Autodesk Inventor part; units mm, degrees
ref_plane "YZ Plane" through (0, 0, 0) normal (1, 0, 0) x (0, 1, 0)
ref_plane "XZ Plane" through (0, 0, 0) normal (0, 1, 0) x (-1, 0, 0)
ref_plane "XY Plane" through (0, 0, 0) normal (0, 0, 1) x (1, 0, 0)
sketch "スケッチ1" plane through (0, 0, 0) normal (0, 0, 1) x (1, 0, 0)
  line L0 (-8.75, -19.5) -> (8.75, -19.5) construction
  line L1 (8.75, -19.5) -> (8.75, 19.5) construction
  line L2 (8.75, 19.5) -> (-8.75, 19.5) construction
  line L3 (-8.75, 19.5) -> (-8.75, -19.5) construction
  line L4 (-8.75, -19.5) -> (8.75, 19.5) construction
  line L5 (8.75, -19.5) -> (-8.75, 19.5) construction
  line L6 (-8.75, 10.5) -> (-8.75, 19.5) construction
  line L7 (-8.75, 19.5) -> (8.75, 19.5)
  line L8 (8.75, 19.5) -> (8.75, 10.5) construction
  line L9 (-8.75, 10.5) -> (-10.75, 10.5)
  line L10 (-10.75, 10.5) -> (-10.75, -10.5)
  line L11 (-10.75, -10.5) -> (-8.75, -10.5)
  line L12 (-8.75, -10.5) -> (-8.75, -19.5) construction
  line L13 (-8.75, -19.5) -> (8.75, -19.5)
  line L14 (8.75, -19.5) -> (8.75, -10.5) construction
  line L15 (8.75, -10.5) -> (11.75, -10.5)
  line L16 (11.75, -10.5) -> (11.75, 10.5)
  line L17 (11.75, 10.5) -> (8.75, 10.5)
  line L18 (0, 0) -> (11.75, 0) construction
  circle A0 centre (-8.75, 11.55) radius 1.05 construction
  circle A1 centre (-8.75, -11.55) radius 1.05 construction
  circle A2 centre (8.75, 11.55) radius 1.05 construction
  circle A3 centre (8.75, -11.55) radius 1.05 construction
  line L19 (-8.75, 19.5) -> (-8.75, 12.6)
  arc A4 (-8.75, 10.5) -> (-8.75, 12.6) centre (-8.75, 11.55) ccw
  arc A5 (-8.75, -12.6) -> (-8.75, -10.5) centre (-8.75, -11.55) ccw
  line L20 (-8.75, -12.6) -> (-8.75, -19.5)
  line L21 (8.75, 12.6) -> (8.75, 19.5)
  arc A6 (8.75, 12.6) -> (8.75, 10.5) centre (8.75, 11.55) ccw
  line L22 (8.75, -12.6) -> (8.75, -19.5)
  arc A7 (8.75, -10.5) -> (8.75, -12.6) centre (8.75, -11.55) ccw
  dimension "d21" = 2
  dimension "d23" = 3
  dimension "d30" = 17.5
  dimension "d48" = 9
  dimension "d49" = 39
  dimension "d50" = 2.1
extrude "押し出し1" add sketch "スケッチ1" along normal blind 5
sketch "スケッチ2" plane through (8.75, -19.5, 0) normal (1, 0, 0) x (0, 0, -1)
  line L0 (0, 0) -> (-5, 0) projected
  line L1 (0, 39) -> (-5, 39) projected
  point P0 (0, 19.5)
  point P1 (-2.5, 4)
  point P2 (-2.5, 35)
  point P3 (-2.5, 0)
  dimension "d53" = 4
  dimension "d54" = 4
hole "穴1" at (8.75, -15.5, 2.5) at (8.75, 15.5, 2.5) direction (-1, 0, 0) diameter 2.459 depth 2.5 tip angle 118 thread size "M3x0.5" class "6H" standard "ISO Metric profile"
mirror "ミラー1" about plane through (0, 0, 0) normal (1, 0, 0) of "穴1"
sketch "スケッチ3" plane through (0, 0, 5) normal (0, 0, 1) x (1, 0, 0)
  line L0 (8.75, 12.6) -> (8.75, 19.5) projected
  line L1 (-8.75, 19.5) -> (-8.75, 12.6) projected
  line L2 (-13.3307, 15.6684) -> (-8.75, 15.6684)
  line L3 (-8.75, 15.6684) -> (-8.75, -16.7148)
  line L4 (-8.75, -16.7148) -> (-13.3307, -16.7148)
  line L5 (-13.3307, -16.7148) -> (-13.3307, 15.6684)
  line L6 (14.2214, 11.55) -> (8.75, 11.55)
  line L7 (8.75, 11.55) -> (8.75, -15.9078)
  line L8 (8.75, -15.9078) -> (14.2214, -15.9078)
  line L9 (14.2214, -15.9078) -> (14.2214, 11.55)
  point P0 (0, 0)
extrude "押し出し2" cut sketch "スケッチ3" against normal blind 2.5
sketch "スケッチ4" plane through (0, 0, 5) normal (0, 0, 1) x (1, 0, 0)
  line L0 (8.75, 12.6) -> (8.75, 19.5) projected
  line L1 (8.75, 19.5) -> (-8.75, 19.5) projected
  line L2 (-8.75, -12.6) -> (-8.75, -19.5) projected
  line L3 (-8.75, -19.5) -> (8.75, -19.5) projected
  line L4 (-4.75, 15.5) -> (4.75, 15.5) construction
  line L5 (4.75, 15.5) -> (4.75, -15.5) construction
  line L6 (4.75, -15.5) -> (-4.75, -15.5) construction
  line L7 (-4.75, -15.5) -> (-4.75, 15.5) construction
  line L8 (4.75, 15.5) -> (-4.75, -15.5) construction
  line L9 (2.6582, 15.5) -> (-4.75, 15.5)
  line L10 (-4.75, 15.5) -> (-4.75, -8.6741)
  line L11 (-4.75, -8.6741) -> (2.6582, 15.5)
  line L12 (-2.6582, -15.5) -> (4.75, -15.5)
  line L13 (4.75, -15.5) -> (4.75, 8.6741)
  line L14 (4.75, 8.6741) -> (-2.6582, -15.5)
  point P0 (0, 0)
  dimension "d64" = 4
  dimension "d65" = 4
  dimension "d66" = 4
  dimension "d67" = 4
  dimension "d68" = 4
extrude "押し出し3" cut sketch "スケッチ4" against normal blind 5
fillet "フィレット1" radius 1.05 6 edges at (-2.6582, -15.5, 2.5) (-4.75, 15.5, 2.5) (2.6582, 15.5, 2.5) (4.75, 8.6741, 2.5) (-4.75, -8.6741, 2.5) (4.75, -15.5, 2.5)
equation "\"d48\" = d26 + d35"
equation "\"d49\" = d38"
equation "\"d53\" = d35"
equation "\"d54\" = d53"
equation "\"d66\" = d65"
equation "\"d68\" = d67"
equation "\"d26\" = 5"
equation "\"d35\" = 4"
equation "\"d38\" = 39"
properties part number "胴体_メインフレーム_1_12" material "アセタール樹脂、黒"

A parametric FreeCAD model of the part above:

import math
import FreeCAD as App
import Part
import Sketcher
Q = App.Units.Quantity


def edges_at(feature, points):
    """Names of the edges that pass closest to the given points."""
    edges = feature.Shape.Edges
    near = lambda p: min(range(len(edges)), key=lambda i: edges[i].distToShape(Part.Vertex(*p))[0])
    return sorted({f"Edge{near(p) + 1}" for p in points})

doc = App.newDocument("Part")
body = doc.addObject("PartDesign::Body", "Body")

# Sketch on XY plane
sketch1 = body.newObject("Sketcher::SketchObject", "Sketch")
sketch1.AttachmentSupport = (doc.getObject("XY_Plane"), [""])
sketch1.MapMode = "FlatFace"
sketch1.addGeometry(Part.LineSegment(App.Vector(8.8, 19.5, 0), App.Vector(-8.8, 19.5, 0)), False)
sketch1.addGeometry(Part.LineSegment(App.Vector(-8.8, 19.5, 0), App.Vector(-8.8, 12.6, 0)), False)
sketch1.addGeometry(Part.ArcOfCircle(Part.Circle(App.Vector(-8.8, 11.6, 0), App.Vector(0, 0, 1), 1.1), math.radians(-90), math.radians(90)), False)
sketch1.addGeometry(Part.LineSegment(App.Vector(-8.8, 10.5, 0), App.Vector(-10.8, 10.5, 0)), False)
sketch1.addGeometry(Part.LineSegment(App.Vector(-10.8, 10.5, 0), App.Vector(-10.8, -10.5, 0)), False)
sketch1.addGeometry(Part.LineSegment(App.Vector(-10.8, -10.5, 0), App.Vector(-8.8, -10.5, 0)), False)
sketch1.addGeometry(Part.ArcOfCircle(Part.Circle(App.Vector(-8.8, -11.6, 0), App.Vector(0, 0, 1), 1.1), math.radians(-90), math.radians(90)), False)
sketch1.addGeometry(Part.LineSegment(App.Vector(-8.8, -12.6, 0), App.Vector(-8.8, -19.5, 0)), False)
sketch1.addGeometry(Part.LineSegment(App.Vector(-8.8, -19.5, 0), App.Vector(8.8, -19.5, 0)), False)
sketch1.addGeometry(Part.LineSegment(App.Vector(8.8, -19.5, 0), App.Vector(8.8, -12.6, 0)), False)
sketch1.addGeometry(Part.ArcOfCircle(Part.Circle(App.Vector(8.8, -11.6, 0), App.Vector(0, 0, 1), 1.1), math.radians(90), math.radians(270)), False)
sketch1.addGeometry(Part.LineSegment(App.Vector(8.8, -10.5, 0), App.Vector(11.8, -10.5, 0)), False)
sketch1.addGeometry(Part.LineSegment(App.Vector(11.8, -10.5, 0), App.Vector(11.8, 10.5, 0)), False)
sketch1.addGeometry(Part.LineSegment(App.Vector(11.8, 10.5, 0), App.Vector(8.8, 10.5, 0)), False)
sketch1.addGeometry(Part.ArcOfCircle(Part.Circle(App.Vector(8.8, 11.6, 0), App.Vector(0, 0, 1), 1.1), math.radians(90), math.radians(270)), False)
sketch1.addGeometry(Part.LineSegment(App.Vector(8.8, 12.6, 0), App.Vector(8.8, 19.5, 0)), False)
sketch1.addConstraint(Sketcher.Constraint("Coincident", 0, 2, 1, 1))
sketch1.addConstraint(Sketcher.Constraint("Coincident", 1, 2, 2, 2))
sketch1.addConstraint(Sketcher.Constraint("Tangent", 2, 1, 3, 1))
sketch1.addConstraint(Sketcher.Constraint("Coincident", 3, 2, 4, 1))
sketch1.addConstraint(Sketcher.Constraint("Coincident", 4, 2, 5, 1))
sketch1.addConstraint(Sketcher.Constraint("Tangent", 5, 2, 6, 2))
sketch1.addConstraint(Sketcher.Constraint("Coincident", 6, 1, 7, 1))
sketch1.addConstraint(Sketcher.Constraint("Coincident", 7, 2, 8, 1))
sketch1.addConstraint(Sketcher.Constraint("Coincident", 8, 2, 9, 1))
sketch1.addConstraint(Sketcher.Constraint("Coincident", 9, 2, 10, 2))
sketch1.addConstraint(Sketcher.Constraint("Tangent", 10, 1, 11, 1))
sketch1.addConstraint(Sketcher.Constraint("Coincident", 11, 2, 12, 1))
sketch1.addConstraint(Sketcher.Constraint("Coincident", 12, 2, 13, 1))
sketch1.addConstraint(Sketcher.Constraint("Tangent", 13, 2, 14, 2))
sketch1.addConstraint(Sketcher.Constraint("Coincident", 14, 1, 15, 1))
sketch1.addConstraint(Sketcher.Constraint("Coincident", 15, 2, 0, 1))
sketch1.addConstraint(Sketcher.Constraint("Horizontal", 0))
sketch1.addConstraint(Sketcher.Constraint("Vertical", 1))
sketch1.addConstraint(Sketcher.Constraint("Horizontal", 3))
sketch1.addConstraint(Sketcher.Constraint("Vertical", 4))
sketch1.addConstraint(Sketcher.Constraint("Horizontal", 5))
sketch1.addConstraint(Sketcher.Constraint("Vertical", 7))
sketch1.addConstraint(Sketcher.Constraint("Horizontal", 8))
sketch1.addConstraint(Sketcher.Constraint("Vertical", 9))
sketch1.addConstraint(Sketcher.Constraint("Horizontal", 11))
sketch1.addConstraint(Sketcher.Constraint("Vertical", 12))
sketch1.addConstraint(Sketcher.Constraint("Horizontal", 13))
sketch1.addConstraint(Sketcher.Constraint("Vertical", 15))
sketch1.addConstraint(Sketcher.Constraint("Equal", 2, 6))
sketch1.addConstraint(Sketcher.Constraint("Equal", 6, 10))
sketch1.addConstraint(Sketcher.Constraint("Equal", 10, 14))
sketch1.addConstraint(Sketcher.Constraint("Symmetric", 2, 3, 10, 3, -1, 1))
sketch1.addConstraint(Sketcher.Constraint("Symmetric", 6, 3, 14, 3, -1, 1))
sketch1.addConstraint(Sketcher.Constraint("Symmetric", 0, 2, 8, 2, -1, 1))
sketch1.addConstraint(Sketcher.Constraint("Symmetric", 6, 3, 10, 3, -2))
sketch1.addConstraint(Sketcher.Constraint("Vertical", 6, 3, 0, 2))
sketch1.addConstraint(Sketcher.Constraint("Vertical", 5, 2, 6, 1))
sketch1.addConstraint(Sketcher.Constraint("Vertical", 13, 2, 14, 1))
sketch1.addConstraint(Sketcher.Constraint("DistanceX", 3, 2, 3, 1, Q("2 mm")))
sketch1.addConstraint(Sketcher.Constraint("DistanceX", 11, 1, 11, 2, Q("3 mm")))
sketch1.addConstraint(Sketcher.Constraint("Radius", 2, Q("1.05 mm")))
sketch1.addConstraint(Sketcher.Constraint("DistanceX", 0, 2, 0, 1, Q("17.5 mm")))
sketch1.addConstraint(Sketcher.Constraint("DistanceY", 2, 1, 0, 2, Q("9 mm")))
sketch1.addConstraint(Sketcher.Constraint("DistanceY", 4, 2, 4, 1, Q("21 mm")))
pad1 = body.newObject("PartDesign::Pad", "Pad")
pad1.Profile = sketch1
pad1.Length = 5

# Sketch on YZ plane
sketch2 = body.newObject("Sketcher::SketchObject", "Sketch001")
sketch2.AttachmentSupport = (doc.getObject("YZ_Plane"), [""])
sketch2.MapMode = "FlatFace"
sketch2.AttachmentOffset = App.Placement(App.Vector(0, 0, 8.75), App.Rotation())
sketch2.addGeometry(Part.Circle(App.Vector(-15.5, 2.5, 0), App.Vector(0, 0, 1), 1.2), False)
sketch2.addGeometry(Part.Circle(App.Vector(15.5, 2.5, 0), App.Vector(0, 0, 1), 1.2), False)
sketch2.addConstraint(Sketcher.Constraint("Equal", 0, 1))
sketch2.addConstraint(Sketcher.Constraint("Symmetric", 0, 3, 1, 3, -2))
sketch2.addConstraint(Sketcher.Constraint("Diameter", 0, Q("2.459 mm")))
sketch2.addConstraint(Sketcher.Constraint("DistanceX", 0, 3, 1, 3, Q("31 mm")))
sketch2.addConstraint(Sketcher.Constraint("DistanceY", -1, 1, 0, 3, Q("2.5 mm")))
doc.recompute()
hole = body.newObject("PartDesign::Hole", "Hole")
hole.Profile = sketch2
hole.ThreadType = "None"
hole.Diameter = 2.459
hole.DepthType = "Dimension"
hole.Depth = 2.5
hole.DrillPoint = "Angled"
hole.DrillPointAngle = 118
doc.recompute()

mirrored = body.newObject("PartDesign::Mirrored", "Mirrored")
mirrored.Originals = [hole]
mirrored.MirrorPlane = (doc.getObject("YZ_Plane"), [""])
body.Tip = mirrored

# Sketch on XY plane
sketch3 = body.newObject("Sketcher::SketchObject", "Sketch002")
sketch3.AttachmentSupport = (doc.getObject("XY_Plane"), [""])
sketch3.MapMode = "FlatFace"
sketch3.AttachmentOffset = App.Placement(App.Vector(0, 0, 5), App.Rotation())
sketch3.addGeometry(Part.LineSegment(App.Vector(-8.8, -16.7, 0), App.Vector(-8.8, 15.7, 0)), False)
sketch3.addGeometry(Part.LineSegment(App.Vector(-8.8, 15.7, 0), App.Vector(-13.3, 15.7, 0)), False)
sketch3.addGeometry(Part.LineSegment(App.Vector(-13.3, 15.7, 0), App.Vector(-13.3, -16.7, 0)), False)
sketch3.addGeometry(Part.LineSegment(App.Vector(-13.3, -16.7, 0), App.Vector(-8.8, -16.7, 0)), False)
sketch3.addGeometry(Part.LineSegment(App.Vector(14.2, -15.9, 0), App.Vector(14.2, 11.6, 0)), False)
sketch3.addGeometry(Part.LineSegment(App.Vector(14.2, 11.6, 0), App.Vector(8.8, 11.6, 0)), False)
sketch3.addGeometry(Part.LineSegment(App.Vector(8.8, 11.6, 0), App.Vector(8.8, -15.9, 0)), False)
sketch3.addGeometry(Part.LineSegment(App.Vector(8.8, -15.9, 0), App.Vector(14.2, -15.9, 0)), False)
sketch3.addConstraint(Sketcher.Constraint("Coincident", 0, 2, 1, 1))
sketch3.addConstraint(Sketcher.Constraint("Coincident", 1, 2, 2, 1))
sketch3.addConstraint(Sketcher.Constraint("Coincident", 2, 2, 3, 1))
sketch3.addConstraint(Sketcher.Constraint("Coincident", 3, 2, 0, 1))
sketch3.addConstraint(Sketcher.Constraint("Coincident", 4, 2, 5, 1))
sketch3.addConstraint(Sketcher.Constraint("Coincident", 5, 2, 6, 1))
sketch3.addConstraint(Sketcher.Constraint("Coincident", 6, 2, 7, 1))
sketch3.addConstraint(Sketcher.Constraint("Coincident", 7, 2, 4, 1))
sketch3.addConstraint(Sketcher.Constraint("Vertical", 0))
sketch3.addConstraint(Sketcher.Constraint("Horizontal", 1))
sketch3.addConstraint(Sketcher.Constraint("Vertical", 2))
sketch3.addConstraint(Sketcher.Constraint("Horizontal", 3))
sketch3.addConstraint(Sketcher.Constraint("Vertical", 4))
sketch3.addConstraint(Sketcher.Constraint("Horizontal", 5))
sketch3.addConstraint(Sketcher.Constraint("Vertical", 6))
sketch3.addConstraint(Sketcher.Constraint("Horizontal", 7))
sketch3.addConstraint(Sketcher.Constraint("DistanceX", 0, 2, 5, 2, Q("17.5 mm")))
sketch3.addConstraint(Sketcher.Constraint("DistanceX", 0, 2, -1, 1, Q("8.75 mm")))
sketch3.addConstraint(Sketcher.Constraint("DistanceY", -1, 1, 4, 2, Q("11.55 mm")))
sketch3.addConstraint(Sketcher.Constraint("DistanceX", 1, 2, 1, 1, Q("4.5807 mm")))
sketch3.addConstraint(Sketcher.Constraint("DistanceX", 5, 2, 5, 1, Q("5.4714 mm")))
sketch3.addConstraint(Sketcher.Constraint("DistanceY", 0, 1, 0, 2, Q("32.3832 mm")))
sketch3.addConstraint(Sketcher.Constraint("DistanceY", 4, 1, 4, 2, Q("27.4578 mm")))
sketch3.addConstraint(Sketcher.Constraint("DistanceY", 3, 2, 6, 2, Q("0.807 mm")))
pocket1 = body.newObject("PartDesign::Pocket", "Pocket")
pocket1.Profile = sketch3
pocket1.Length = 2.5

# Sketch on XY plane
sketch4 = body.newObject("Sketcher::SketchObject", "Sketch003")
sketch4.AttachmentSupport = (doc.getObject("XY_Plane"), [""])
sketch4.MapMode = "FlatFace"
sketch4.AttachmentOffset = App.Placement(App.Vector(0, 0, 5), App.Rotation())
sketch4.addGeometry(Part.LineSegment(App.Vector(-5, -9, 0), App.Vector(3, 16, 0)), False)
sketch4.addGeometry(Part.LineSegment(App.Vector(3, 16, 0), App.Vector(-5, 16, 0)), False)
sketch4.addGeometry(Part.LineSegment(App.Vector(-5, 16, 0), App.Vector(-5, -9, 0)), False)
sketch4.addGeometry(Part.LineSegment(App.Vector(5, 9, 0), App.Vector(-3, -16, 0)), False)
sketch4.addGeometry(Part.LineSegment(App.Vector(-3, -16, 0), App.Vector(5, -16, 0)), False)
sketch4.addGeometry(Part.LineSegment(App.Vector(5, -16, 0), App.Vector(5, 9, 0)), False)
sketch4.addConstraint(Sketcher.Constraint("Coincident", 0, 2, 1, 1))
sketch4.addConstraint(Sketcher.Constraint("Coincident", 1, 2, 2, 1))
sketch4.addConstraint(Sketcher.Constraint("Coincident", 2, 2, 0, 1))
sketch4.addConstraint(Sketcher.Constraint("Coincident", 3, 2, 4, 1))
sketch4.addConstraint(Sketcher.Constraint("Coincident", 4, 2, 5, 1))
sketch4.addConstraint(Sketcher.Constraint("Coincident", 5, 2, 3, 1))
sketch4.addConstraint(Sketcher.Constraint("Horizontal", 1))
sketch4.addConstraint(Sketcher.Constraint("Vertical", 2))
sketch4.addConstraint(Sketcher.Constraint("Horizontal", 4))
sketch4.addConstraint(Sketcher.Constraint("Vertical", 5))
sketch4.addConstraint(Sketcher.Constraint("Symmetric", 0, 2, 3, 2, -1, 1))
sketch4.addConstraint(Sketcher.Constraint("Symmetric", 2, 2, 5, 2, -1, 1))
sketch4.addConstraint(Sketcher.Constraint("DistanceY", 3, 2, 1, 2, Q("31 mm")))
sketch4.addConstraint(Sketcher.Constraint("DistanceX", 2, 2, 4, 2, Q("9.5 mm")))
sketch4.addConstraint(Sketcher.Constraint("DistanceY", 2, 2, 2, 1, Q("24.174 mm")))
sketch4.addConstraint(Sketcher.Constraint("DistanceX", 1, 2, 1, 1, Q("7.4082 mm")))
pocket2 = body.newObject("PartDesign::Pocket", "Pocket001")
pocket2.Profile = sketch4
pocket2.Length = 5
doc.recompute()

fillet = body.newObject("PartDesign::Fillet", "Fillet")
fillet.Base = (pocket2, edges_at(pocket2, [
    (-2.658, -15.5, 2.5),
    (-4.75, 15.5, 2.5),
    (2.658, 15.5, 2.5),
    (4.75, 8.674, 2.5),
    (-4.75, -8.674, 2.5),
    (4.75, -15.5, 2.5),
]))
fillet.Radius = 1.05

doc.recompute()
